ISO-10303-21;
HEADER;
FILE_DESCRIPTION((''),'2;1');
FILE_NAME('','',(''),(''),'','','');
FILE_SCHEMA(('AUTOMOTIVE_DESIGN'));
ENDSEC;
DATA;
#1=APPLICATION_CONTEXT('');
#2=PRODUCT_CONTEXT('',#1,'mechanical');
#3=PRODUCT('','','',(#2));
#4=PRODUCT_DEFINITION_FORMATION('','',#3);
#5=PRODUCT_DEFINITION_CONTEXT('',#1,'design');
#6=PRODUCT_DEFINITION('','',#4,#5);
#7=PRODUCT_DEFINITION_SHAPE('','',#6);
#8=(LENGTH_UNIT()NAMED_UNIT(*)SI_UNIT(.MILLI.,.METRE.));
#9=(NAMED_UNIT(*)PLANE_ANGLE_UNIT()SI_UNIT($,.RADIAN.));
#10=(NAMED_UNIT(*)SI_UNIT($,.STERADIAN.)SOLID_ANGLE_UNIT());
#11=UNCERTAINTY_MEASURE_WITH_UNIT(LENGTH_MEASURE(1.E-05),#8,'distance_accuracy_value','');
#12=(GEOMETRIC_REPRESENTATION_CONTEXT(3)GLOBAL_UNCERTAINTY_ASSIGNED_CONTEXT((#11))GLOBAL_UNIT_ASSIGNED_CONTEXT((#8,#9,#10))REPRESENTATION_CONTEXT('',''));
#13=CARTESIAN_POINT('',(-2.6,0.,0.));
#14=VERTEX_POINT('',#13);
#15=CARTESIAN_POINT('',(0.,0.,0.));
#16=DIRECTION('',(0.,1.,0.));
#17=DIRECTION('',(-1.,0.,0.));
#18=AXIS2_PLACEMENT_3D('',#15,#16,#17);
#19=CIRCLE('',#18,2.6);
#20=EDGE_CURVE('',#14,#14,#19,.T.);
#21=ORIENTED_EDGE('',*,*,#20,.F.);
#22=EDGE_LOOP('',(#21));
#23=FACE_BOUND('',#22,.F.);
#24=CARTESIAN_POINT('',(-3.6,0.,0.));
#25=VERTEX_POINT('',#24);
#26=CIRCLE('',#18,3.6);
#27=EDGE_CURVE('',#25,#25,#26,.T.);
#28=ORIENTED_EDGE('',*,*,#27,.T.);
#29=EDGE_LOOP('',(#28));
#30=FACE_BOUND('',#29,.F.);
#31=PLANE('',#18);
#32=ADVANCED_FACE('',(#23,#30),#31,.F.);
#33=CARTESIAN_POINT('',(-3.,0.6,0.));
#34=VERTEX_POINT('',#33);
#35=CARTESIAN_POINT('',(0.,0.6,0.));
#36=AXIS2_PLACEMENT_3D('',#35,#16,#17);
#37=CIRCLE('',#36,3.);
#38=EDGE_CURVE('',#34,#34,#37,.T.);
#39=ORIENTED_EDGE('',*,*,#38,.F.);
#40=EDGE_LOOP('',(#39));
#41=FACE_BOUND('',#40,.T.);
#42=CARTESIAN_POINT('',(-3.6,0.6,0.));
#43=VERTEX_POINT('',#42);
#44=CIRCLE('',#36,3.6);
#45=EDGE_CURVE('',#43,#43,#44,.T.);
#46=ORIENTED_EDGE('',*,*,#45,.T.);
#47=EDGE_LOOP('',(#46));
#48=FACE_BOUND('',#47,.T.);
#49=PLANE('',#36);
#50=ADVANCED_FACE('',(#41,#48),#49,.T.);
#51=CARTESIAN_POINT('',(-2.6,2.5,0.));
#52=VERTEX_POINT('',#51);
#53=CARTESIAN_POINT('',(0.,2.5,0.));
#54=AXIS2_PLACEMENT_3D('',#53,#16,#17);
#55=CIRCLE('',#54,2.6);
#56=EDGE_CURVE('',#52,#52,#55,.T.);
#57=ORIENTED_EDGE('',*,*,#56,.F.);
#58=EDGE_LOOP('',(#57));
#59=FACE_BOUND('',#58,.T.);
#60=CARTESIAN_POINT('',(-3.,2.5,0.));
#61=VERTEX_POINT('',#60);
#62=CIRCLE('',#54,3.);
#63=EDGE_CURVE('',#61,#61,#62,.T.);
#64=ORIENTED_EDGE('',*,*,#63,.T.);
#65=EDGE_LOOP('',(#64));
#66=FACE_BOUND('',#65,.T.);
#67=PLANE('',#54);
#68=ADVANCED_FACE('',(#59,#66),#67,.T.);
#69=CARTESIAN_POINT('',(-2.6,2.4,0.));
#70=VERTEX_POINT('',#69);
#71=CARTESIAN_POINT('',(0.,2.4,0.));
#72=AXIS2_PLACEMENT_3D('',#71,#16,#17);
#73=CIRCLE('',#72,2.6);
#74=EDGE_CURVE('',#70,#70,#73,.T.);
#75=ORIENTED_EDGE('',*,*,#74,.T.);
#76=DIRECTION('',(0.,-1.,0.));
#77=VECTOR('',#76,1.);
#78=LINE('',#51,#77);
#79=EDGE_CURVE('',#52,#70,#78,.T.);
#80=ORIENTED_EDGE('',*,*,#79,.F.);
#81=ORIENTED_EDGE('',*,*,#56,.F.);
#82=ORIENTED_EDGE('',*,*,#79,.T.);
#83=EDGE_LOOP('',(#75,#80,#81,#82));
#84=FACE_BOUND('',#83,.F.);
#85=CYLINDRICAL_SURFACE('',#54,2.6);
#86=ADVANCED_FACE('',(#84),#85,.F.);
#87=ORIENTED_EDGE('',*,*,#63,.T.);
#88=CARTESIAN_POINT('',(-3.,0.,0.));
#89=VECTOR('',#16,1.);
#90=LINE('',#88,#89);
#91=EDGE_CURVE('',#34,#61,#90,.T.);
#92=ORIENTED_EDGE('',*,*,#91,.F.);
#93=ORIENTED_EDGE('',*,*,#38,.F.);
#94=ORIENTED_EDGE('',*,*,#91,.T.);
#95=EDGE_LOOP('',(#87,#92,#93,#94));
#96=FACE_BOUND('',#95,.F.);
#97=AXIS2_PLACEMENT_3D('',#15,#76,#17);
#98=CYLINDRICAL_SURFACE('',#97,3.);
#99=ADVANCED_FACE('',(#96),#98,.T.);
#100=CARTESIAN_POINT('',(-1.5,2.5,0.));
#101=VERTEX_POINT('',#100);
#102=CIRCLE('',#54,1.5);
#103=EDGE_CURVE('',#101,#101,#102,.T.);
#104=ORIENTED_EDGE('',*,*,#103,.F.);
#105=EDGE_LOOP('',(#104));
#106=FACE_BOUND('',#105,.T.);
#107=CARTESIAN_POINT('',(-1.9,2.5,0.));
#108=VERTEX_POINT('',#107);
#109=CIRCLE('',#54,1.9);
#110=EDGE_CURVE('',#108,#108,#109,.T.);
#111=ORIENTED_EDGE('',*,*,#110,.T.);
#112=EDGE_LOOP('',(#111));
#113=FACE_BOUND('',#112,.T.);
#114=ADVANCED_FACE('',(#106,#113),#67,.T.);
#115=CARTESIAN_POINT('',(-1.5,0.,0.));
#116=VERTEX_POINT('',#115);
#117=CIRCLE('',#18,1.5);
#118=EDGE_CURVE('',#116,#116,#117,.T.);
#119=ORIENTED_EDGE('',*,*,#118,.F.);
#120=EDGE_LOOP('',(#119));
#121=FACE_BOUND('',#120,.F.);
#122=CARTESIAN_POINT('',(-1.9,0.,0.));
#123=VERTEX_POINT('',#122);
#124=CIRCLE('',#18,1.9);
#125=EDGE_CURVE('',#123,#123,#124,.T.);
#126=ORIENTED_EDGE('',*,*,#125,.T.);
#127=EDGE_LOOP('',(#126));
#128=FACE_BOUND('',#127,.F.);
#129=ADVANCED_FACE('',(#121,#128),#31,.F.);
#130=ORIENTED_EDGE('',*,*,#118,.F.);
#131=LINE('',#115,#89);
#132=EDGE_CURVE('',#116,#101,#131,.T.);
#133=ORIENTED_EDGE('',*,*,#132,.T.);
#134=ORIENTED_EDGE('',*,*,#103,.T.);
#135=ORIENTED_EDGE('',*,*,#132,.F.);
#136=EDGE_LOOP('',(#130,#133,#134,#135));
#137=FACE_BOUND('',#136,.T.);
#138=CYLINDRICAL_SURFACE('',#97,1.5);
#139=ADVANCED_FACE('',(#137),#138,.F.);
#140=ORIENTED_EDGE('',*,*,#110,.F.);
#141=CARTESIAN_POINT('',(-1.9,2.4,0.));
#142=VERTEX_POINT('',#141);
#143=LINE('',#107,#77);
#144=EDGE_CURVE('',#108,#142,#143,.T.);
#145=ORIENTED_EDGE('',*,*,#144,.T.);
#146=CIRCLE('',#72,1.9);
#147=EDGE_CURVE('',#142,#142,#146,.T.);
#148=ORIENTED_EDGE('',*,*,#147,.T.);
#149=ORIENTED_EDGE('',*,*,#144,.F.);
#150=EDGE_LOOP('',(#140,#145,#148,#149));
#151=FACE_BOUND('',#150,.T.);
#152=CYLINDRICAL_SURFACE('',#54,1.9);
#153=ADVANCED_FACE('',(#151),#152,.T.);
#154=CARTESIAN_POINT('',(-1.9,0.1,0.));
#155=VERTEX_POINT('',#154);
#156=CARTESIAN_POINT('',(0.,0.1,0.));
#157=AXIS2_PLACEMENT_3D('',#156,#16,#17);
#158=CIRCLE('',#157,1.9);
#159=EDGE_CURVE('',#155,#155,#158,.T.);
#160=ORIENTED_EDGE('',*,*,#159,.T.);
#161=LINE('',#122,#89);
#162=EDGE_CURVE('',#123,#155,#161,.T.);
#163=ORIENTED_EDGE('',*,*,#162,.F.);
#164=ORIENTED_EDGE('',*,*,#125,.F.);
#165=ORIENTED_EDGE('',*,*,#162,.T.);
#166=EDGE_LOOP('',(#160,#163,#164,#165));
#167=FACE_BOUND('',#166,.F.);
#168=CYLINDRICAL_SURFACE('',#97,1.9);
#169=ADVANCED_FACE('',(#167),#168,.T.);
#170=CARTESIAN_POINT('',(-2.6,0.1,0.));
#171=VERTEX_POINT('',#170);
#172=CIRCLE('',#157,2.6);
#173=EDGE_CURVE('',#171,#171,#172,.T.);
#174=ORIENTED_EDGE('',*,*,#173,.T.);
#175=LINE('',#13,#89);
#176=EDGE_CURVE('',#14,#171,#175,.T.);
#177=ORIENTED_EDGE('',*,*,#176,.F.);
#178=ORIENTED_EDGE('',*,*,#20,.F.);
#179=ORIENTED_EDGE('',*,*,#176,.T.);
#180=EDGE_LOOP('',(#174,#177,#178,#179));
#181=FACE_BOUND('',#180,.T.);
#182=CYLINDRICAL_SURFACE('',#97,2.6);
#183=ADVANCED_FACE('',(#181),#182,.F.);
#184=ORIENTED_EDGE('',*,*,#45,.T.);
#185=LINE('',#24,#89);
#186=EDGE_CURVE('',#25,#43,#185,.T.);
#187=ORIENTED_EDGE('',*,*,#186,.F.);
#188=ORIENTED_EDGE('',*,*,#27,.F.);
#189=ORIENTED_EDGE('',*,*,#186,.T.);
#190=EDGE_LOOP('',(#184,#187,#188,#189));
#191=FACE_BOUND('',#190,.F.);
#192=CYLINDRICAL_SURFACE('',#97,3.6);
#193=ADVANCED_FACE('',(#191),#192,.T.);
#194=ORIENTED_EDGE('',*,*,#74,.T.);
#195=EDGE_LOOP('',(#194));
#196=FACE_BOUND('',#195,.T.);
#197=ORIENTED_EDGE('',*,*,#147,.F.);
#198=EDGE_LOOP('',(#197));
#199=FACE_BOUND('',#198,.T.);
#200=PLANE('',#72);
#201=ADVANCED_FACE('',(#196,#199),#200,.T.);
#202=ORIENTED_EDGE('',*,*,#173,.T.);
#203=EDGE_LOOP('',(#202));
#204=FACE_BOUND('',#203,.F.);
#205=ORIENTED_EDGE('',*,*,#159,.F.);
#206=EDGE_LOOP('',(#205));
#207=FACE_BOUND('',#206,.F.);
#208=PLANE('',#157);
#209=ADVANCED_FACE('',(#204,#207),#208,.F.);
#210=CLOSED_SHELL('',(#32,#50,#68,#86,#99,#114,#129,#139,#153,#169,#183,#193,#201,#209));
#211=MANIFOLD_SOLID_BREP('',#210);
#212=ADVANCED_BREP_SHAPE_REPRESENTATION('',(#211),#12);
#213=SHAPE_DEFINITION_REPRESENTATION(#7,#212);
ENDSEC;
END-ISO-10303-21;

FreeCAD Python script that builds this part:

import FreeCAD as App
import Part
import Sketcher

doc = App.newDocument("Part")
body = doc.addObject("PartDesign::Body", "Body")

# Sketch on XZ plane
sketch1 = body.newObject("Sketcher::SketchObject", "Sketch")
sketch1.AttachmentSupport = (doc.getObject("XZ_Plane"), [""])
sketch1.MapMode = "FlatFace"
sketch1.addGeometry(Part.Circle(App.Vector(0, 0, 0), App.Vector(0, 0, 1), 3), False)
sketch1.addGeometry(Part.Circle(App.Vector(0, 0, 0), App.Vector(0, 0, 1), 1.5), False)
sketch1.addConstraint(Sketcher.Constraint("Coincident", 0, 3, -1, 1))
sketch1.addConstraint(Sketcher.Constraint("Coincident", 1, 3, -1, 1))
sketch1.addConstraint(Sketcher.Constraint("Diameter", 0, 6.0))
sketch1.addConstraint(Sketcher.Constraint("Diameter", 1, 3.0))
pad1 = body.newObject("PartDesign::Pad", "Pad")
pad1.Profile = sketch1
pad1.Length = 2.5
pad1.Reversed = True

# Sketch on XZ plane
sketch2 = body.newObject("Sketcher::SketchObject", "Sketch001")
sketch2.AttachmentSupport = (doc.getObject("XZ_Plane"), [""])
sketch2.MapMode = "FlatFace"
sketch2.addGeometry(Part.Circle(App.Vector(0, 0, 0), App.Vector(0, 0, 1), 3.6), False)
sketch2.addGeometry(Part.Circle(App.Vector(0, 0, 0), App.Vector(0, 0, 1), 3), False)
sketch2.addConstraint(Sketcher.Constraint("Coincident", 0, 3, -1, 1))
sketch2.addConstraint(Sketcher.Constraint("Coincident", 1, 3, -1, 1))
sketch2.addConstraint(Sketcher.Constraint("Diameter", 1, 6.0))
sketch2.addConstraint(Sketcher.Constraint("Diameter", 0, 7.2))
pad2 = body.newObject("PartDesign::Pad", "Pad001")
pad2.Profile = sketch2
pad2.Length = 0.6
pad2.Reversed = True

# Sketch on XZ plane
sketch3 = body.newObject("Sketcher::SketchObject", "Sketch002")
sketch3.AttachmentSupport = (doc.getObject("XZ_Plane"), [""])
sketch3.MapMode = "FlatFace"
sketch3.addGeometry(Part.Circle(App.Vector(0, 0, 0), App.Vector(0, 0, 1), 2.6), False)
sketch3.addGeometry(Part.Circle(App.Vector(0, 0, 0), App.Vector(0, 0, 1), 1.9), False)
sketch3.addConstraint(Sketcher.Constraint("Coincident", 0, 3, -1, 1))
sketch3.addConstraint(Sketcher.Constraint("Coincident", 1, 3, -1, 1))
sketch3.addConstraint(Sketcher.Constraint("Diameter", 0, 5.2))
sketch3.addConstraint(Sketcher.Constraint("Diameter", 1, 3.8))
pocket1 = body.newObject("PartDesign::Pocket", "Pocket")
pocket1.Profile = sketch3
pocket1.Length = 0.1

# Sketch on XZ plane
sketch4 = body.newObject("Sketcher::SketchObject", "Sketch003")
sketch4.AttachmentSupport = (doc.getObject("XZ_Plane"), [""])
sketch4.MapMode = "FlatFace"
sketch4.AttachmentOffset = App.Placement(App.Vector(0, 0, -2.5), App.Rotation())
sketch4.addGeometry(Part.Circle(App.Vector(0, 0, 0), App.Vector(0, 0, 1), 2.6), False)
sketch4.addGeometry(Part.Circle(App.Vector(0, 0, 0), App.Vector(0, 0, 1), 1.9), False)
sketch4.addConstraint(Sketcher.Constraint("Coincident", 0, 3, -1, 1))
sketch4.addConstraint(Sketcher.Constraint("Coincident", 1, 3, -1, 1))
sketch4.addConstraint(Sketcher.Constraint("Diameter", 0, 5.2))
sketch4.addConstraint(Sketcher.Constraint("Diameter", 1, 3.8))
pocket2 = body.newObject("PartDesign::Pocket", "Pocket001")
pocket2.Profile = sketch4
pocket2.Length = 0.1
pocket2.Reversed = True

doc.recompute()
